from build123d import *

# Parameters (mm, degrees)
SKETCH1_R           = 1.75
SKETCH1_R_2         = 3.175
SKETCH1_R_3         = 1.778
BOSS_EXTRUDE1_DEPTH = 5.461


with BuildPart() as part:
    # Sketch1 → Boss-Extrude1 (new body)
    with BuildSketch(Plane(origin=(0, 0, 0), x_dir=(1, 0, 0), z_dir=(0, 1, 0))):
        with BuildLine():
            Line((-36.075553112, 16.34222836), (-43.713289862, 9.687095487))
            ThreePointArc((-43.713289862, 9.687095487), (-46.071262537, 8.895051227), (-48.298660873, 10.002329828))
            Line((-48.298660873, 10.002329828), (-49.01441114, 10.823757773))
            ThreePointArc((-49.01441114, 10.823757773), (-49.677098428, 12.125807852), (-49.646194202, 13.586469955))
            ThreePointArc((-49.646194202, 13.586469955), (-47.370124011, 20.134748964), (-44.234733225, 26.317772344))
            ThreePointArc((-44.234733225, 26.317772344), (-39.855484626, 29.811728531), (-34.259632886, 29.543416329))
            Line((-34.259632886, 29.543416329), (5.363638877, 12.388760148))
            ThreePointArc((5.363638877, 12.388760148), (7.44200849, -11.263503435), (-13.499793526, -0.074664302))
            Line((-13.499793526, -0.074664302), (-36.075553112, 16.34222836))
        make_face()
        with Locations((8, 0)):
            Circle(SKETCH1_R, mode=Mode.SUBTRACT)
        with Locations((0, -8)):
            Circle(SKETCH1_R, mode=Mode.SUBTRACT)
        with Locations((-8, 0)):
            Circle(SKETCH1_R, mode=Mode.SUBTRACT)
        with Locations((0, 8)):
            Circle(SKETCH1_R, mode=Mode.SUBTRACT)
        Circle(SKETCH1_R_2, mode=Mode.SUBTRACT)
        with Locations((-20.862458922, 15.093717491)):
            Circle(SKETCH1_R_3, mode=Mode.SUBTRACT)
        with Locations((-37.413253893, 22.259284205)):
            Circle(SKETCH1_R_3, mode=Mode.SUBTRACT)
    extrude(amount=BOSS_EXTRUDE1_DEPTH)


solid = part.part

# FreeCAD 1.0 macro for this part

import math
import FreeCAD as App
import Part
import Sketcher
from FreeCAD import Vector

doc = App.newDocument("Part")
params = doc.addObject("Spreadsheet::Sheet", "Params")
for row, (alias, value) in enumerate([
    ("sketch1_radius", "3 mm"),
    ("sketch1_diameter", "3.5 mm"),
    ("sketch1_radius2", "13.5 mm"),
    ("sketch1_diameter2", "6.35 mm"),
    ("sketch1_radius3", "3.25 mm"),
    ("pad1_length", "5.461 mm"),
], start=1):
    params.set(f"A{row}", alias)
    params.set(f"B{row}", "=" + value)
    params.setAlias(f"B{row}", alias)

body = doc.addObject("PartDesign::Body", "Body")

sketch1 = body.newObject("Sketcher::SketchObject", "Sketch")
sketch1.AttachmentSupport = (doc.getObject("XZ_Plane"), [""])
sketch1.MapMode = "FlatFace"
sketch1.addGeometry([
    Part.LineSegment(Vector(-43.7, -9.7, 0), Vector(-36.1, -16.3, 0)),
    Part.LineSegment(Vector(-36.1, -16.3, 0), Vector(-13.5, 0.1, 0)),
    Part.ArcOfCircle(Part.Circle(Vector(0, 0, 0), Vector(0, 0, 1), 13.5), math.radians(-67), math.radians(180)),
    Part.LineSegment(Vector(5.4, -12.4, 0), Vector(-34.3, -29.5, 0)),
    Part.ArcOfCircle(Part.Circle(Vector(-37.4, -22.3, 0), Vector(0, 0, 1), 7.9), math.radians(-149), math.radians(-67)),
    Part.ArcOfCircle(Part.Circle(Vector(0, 0, 0), Vector(0, 0, 1), 51.5), math.radians(-164.69), math.radians(-149.25)),
    Part.ArcOfCircle(Part.Circle(Vector(-46.8, -12.8, 0), Vector(0, 0, 1), 3), math.radians(139), math.radians(195)),
    Part.LineSegment(Vector(-49, -10.8, 0), Vector(-48.3, -10, 0)),
    Part.ArcOfCircle(Part.Circle(Vector(-45.8, -12.1, 0), Vector(0, 0, 1), 3.2), math.radians(49), math.radians(139)),
    Part.Circle(Vector(0, 8, 0), Vector(0, 0, 1), 1.8),
    Part.Circle(Vector(8, 0, 0), Vector(0, 0, 1), 1.8),
    Part.Circle(Vector(0, 0, 0), Vector(0, 0, 1), 3.2),
    Part.Circle(Vector(-8, 0, 0), Vector(0, 0, 1), 1.8),
    Part.Circle(Vector(0, -8, 0), Vector(0, 0, 1), 1.8),
    Part.Circle(Vector(-20.9, -15.1, 0), Vector(0, 0, 1), 1.8),
    Part.Circle(Vector(-37.4, -22.3, 0), Vector(0, 0, 1), 1.8),
], False)
sketch1.addConstraint([
    Sketcher.Constraint("Coincident", 0, 2, 1, 1),
    Sketcher.Constraint("Coincident", 1, 2, 2, 2),
    Sketcher.Constraint("Tangent", 2, 1, 3, 1),
    Sketcher.Constraint("Tangent", 3, 2, 4, 2),
    Sketcher.Constraint("Tangent", 4, 1, 5, 2),
    Sketcher.Constraint("Tangent", 5, 1, 6, 2),
    Sketcher.Constraint("Tangent", 6, 1, 7, 1),
    Sketcher.Constraint("Tangent", 7, 2, 8, 2),
    Sketcher.Constraint("Tangent", 8, 1, 0, 1),
    Sketcher.Constraint("Coincident", 2, 3, -1, 1),
    Sketcher.Constraint("Coincident", 5, 3, -1, 1),
    Sketcher.Constraint("Coincident", 11, 3, -1, 1),
    Sketcher.Constraint("Coincident", 15, 3, 4, 3),
    Sketcher.Constraint("Equal", 9, 10),
    Sketcher.Constraint("Equal", 10, 12),
    Sketcher.Constraint("Equal", 12, 13),
    Sketcher.Constraint("Equal", 14, 15),
    Sketcher.Constraint("Symmetric", 10, 3, 12, 3, -1, 1),
    Sketcher.Constraint("Symmetric", 9, 3, 13, 3, -1, 1),
    Sketcher.Constraint("PointOnObject", 9, 3, -2),
    Sketcher.Constraint("PointOnObject", 10, 3, -1),
    Sketcher.Constraint("Perpendicular", 0, 7),
    Sketcher.Constraint("Radius", 6, 3.0),
    Sketcher.Constraint("Diameter", 9, 3.5),
    Sketcher.Constraint("Radius", 2, 13.5),
    Sketcher.Constraint("Diameter", 11, 6.35),
    Sketcher.Constraint("Radius", 8, 3.25),
    Sketcher.Constraint("Diameter", 14, 3.556),
    Sketcher.Constraint("DistanceY", -1, 1, 9, 3, 8.0),
    Sketcher.Constraint("DistanceX", -1, 1, 10, 3, 8.0),
    Sketcher.Constraint("Radius", 4, 7.9375),
    Sketcher.Constraint("Radius", 5, 51.471708),
    Sketcher.Constraint("DistanceY", 8, 3, -1, 1, 12.137398),
    Sketcher.Constraint("DistanceX", 8, 3, 14, 3, 24.985899),
    Sketcher.Constraint("DistanceX", 4, 3, 0, 2, 1.337701),
    Sketcher.Constraint("DistanceY", 3, 2, 14, 3, 14.449699),
    Sketcher.Constraint("DistanceX", 4, 1, 3, 2, 9.9751),
    Sketcher.Constraint("DistanceY", 0, 2, 7, 2, 6.339899),
    Sketcher.Constraint("Distance", 0, 10.13044),
    Sketcher.Constraint("Distance", 1, 27.913783),
])
sketch1.setExpression("Constraints[22]", "Params.sketch1_radius")
sketch1.setExpression("Constraints[23]", "Params.sketch1_diameter")
sketch1.setExpression("Constraints[24]", "Params.sketch1_radius2")
sketch1.setExpression("Constraints[25]", "Params.sketch1_diameter2")
sketch1.setExpression("Constraints[26]", "Params.sketch1_radius3")
pad1 = body.newObject("PartDesign::Pad", "Pad")
pad1.Profile = sketch1
pad1.setExpression("Length", "Params.pad1_length")
pad1.Reversed = True

doc.recompute()
